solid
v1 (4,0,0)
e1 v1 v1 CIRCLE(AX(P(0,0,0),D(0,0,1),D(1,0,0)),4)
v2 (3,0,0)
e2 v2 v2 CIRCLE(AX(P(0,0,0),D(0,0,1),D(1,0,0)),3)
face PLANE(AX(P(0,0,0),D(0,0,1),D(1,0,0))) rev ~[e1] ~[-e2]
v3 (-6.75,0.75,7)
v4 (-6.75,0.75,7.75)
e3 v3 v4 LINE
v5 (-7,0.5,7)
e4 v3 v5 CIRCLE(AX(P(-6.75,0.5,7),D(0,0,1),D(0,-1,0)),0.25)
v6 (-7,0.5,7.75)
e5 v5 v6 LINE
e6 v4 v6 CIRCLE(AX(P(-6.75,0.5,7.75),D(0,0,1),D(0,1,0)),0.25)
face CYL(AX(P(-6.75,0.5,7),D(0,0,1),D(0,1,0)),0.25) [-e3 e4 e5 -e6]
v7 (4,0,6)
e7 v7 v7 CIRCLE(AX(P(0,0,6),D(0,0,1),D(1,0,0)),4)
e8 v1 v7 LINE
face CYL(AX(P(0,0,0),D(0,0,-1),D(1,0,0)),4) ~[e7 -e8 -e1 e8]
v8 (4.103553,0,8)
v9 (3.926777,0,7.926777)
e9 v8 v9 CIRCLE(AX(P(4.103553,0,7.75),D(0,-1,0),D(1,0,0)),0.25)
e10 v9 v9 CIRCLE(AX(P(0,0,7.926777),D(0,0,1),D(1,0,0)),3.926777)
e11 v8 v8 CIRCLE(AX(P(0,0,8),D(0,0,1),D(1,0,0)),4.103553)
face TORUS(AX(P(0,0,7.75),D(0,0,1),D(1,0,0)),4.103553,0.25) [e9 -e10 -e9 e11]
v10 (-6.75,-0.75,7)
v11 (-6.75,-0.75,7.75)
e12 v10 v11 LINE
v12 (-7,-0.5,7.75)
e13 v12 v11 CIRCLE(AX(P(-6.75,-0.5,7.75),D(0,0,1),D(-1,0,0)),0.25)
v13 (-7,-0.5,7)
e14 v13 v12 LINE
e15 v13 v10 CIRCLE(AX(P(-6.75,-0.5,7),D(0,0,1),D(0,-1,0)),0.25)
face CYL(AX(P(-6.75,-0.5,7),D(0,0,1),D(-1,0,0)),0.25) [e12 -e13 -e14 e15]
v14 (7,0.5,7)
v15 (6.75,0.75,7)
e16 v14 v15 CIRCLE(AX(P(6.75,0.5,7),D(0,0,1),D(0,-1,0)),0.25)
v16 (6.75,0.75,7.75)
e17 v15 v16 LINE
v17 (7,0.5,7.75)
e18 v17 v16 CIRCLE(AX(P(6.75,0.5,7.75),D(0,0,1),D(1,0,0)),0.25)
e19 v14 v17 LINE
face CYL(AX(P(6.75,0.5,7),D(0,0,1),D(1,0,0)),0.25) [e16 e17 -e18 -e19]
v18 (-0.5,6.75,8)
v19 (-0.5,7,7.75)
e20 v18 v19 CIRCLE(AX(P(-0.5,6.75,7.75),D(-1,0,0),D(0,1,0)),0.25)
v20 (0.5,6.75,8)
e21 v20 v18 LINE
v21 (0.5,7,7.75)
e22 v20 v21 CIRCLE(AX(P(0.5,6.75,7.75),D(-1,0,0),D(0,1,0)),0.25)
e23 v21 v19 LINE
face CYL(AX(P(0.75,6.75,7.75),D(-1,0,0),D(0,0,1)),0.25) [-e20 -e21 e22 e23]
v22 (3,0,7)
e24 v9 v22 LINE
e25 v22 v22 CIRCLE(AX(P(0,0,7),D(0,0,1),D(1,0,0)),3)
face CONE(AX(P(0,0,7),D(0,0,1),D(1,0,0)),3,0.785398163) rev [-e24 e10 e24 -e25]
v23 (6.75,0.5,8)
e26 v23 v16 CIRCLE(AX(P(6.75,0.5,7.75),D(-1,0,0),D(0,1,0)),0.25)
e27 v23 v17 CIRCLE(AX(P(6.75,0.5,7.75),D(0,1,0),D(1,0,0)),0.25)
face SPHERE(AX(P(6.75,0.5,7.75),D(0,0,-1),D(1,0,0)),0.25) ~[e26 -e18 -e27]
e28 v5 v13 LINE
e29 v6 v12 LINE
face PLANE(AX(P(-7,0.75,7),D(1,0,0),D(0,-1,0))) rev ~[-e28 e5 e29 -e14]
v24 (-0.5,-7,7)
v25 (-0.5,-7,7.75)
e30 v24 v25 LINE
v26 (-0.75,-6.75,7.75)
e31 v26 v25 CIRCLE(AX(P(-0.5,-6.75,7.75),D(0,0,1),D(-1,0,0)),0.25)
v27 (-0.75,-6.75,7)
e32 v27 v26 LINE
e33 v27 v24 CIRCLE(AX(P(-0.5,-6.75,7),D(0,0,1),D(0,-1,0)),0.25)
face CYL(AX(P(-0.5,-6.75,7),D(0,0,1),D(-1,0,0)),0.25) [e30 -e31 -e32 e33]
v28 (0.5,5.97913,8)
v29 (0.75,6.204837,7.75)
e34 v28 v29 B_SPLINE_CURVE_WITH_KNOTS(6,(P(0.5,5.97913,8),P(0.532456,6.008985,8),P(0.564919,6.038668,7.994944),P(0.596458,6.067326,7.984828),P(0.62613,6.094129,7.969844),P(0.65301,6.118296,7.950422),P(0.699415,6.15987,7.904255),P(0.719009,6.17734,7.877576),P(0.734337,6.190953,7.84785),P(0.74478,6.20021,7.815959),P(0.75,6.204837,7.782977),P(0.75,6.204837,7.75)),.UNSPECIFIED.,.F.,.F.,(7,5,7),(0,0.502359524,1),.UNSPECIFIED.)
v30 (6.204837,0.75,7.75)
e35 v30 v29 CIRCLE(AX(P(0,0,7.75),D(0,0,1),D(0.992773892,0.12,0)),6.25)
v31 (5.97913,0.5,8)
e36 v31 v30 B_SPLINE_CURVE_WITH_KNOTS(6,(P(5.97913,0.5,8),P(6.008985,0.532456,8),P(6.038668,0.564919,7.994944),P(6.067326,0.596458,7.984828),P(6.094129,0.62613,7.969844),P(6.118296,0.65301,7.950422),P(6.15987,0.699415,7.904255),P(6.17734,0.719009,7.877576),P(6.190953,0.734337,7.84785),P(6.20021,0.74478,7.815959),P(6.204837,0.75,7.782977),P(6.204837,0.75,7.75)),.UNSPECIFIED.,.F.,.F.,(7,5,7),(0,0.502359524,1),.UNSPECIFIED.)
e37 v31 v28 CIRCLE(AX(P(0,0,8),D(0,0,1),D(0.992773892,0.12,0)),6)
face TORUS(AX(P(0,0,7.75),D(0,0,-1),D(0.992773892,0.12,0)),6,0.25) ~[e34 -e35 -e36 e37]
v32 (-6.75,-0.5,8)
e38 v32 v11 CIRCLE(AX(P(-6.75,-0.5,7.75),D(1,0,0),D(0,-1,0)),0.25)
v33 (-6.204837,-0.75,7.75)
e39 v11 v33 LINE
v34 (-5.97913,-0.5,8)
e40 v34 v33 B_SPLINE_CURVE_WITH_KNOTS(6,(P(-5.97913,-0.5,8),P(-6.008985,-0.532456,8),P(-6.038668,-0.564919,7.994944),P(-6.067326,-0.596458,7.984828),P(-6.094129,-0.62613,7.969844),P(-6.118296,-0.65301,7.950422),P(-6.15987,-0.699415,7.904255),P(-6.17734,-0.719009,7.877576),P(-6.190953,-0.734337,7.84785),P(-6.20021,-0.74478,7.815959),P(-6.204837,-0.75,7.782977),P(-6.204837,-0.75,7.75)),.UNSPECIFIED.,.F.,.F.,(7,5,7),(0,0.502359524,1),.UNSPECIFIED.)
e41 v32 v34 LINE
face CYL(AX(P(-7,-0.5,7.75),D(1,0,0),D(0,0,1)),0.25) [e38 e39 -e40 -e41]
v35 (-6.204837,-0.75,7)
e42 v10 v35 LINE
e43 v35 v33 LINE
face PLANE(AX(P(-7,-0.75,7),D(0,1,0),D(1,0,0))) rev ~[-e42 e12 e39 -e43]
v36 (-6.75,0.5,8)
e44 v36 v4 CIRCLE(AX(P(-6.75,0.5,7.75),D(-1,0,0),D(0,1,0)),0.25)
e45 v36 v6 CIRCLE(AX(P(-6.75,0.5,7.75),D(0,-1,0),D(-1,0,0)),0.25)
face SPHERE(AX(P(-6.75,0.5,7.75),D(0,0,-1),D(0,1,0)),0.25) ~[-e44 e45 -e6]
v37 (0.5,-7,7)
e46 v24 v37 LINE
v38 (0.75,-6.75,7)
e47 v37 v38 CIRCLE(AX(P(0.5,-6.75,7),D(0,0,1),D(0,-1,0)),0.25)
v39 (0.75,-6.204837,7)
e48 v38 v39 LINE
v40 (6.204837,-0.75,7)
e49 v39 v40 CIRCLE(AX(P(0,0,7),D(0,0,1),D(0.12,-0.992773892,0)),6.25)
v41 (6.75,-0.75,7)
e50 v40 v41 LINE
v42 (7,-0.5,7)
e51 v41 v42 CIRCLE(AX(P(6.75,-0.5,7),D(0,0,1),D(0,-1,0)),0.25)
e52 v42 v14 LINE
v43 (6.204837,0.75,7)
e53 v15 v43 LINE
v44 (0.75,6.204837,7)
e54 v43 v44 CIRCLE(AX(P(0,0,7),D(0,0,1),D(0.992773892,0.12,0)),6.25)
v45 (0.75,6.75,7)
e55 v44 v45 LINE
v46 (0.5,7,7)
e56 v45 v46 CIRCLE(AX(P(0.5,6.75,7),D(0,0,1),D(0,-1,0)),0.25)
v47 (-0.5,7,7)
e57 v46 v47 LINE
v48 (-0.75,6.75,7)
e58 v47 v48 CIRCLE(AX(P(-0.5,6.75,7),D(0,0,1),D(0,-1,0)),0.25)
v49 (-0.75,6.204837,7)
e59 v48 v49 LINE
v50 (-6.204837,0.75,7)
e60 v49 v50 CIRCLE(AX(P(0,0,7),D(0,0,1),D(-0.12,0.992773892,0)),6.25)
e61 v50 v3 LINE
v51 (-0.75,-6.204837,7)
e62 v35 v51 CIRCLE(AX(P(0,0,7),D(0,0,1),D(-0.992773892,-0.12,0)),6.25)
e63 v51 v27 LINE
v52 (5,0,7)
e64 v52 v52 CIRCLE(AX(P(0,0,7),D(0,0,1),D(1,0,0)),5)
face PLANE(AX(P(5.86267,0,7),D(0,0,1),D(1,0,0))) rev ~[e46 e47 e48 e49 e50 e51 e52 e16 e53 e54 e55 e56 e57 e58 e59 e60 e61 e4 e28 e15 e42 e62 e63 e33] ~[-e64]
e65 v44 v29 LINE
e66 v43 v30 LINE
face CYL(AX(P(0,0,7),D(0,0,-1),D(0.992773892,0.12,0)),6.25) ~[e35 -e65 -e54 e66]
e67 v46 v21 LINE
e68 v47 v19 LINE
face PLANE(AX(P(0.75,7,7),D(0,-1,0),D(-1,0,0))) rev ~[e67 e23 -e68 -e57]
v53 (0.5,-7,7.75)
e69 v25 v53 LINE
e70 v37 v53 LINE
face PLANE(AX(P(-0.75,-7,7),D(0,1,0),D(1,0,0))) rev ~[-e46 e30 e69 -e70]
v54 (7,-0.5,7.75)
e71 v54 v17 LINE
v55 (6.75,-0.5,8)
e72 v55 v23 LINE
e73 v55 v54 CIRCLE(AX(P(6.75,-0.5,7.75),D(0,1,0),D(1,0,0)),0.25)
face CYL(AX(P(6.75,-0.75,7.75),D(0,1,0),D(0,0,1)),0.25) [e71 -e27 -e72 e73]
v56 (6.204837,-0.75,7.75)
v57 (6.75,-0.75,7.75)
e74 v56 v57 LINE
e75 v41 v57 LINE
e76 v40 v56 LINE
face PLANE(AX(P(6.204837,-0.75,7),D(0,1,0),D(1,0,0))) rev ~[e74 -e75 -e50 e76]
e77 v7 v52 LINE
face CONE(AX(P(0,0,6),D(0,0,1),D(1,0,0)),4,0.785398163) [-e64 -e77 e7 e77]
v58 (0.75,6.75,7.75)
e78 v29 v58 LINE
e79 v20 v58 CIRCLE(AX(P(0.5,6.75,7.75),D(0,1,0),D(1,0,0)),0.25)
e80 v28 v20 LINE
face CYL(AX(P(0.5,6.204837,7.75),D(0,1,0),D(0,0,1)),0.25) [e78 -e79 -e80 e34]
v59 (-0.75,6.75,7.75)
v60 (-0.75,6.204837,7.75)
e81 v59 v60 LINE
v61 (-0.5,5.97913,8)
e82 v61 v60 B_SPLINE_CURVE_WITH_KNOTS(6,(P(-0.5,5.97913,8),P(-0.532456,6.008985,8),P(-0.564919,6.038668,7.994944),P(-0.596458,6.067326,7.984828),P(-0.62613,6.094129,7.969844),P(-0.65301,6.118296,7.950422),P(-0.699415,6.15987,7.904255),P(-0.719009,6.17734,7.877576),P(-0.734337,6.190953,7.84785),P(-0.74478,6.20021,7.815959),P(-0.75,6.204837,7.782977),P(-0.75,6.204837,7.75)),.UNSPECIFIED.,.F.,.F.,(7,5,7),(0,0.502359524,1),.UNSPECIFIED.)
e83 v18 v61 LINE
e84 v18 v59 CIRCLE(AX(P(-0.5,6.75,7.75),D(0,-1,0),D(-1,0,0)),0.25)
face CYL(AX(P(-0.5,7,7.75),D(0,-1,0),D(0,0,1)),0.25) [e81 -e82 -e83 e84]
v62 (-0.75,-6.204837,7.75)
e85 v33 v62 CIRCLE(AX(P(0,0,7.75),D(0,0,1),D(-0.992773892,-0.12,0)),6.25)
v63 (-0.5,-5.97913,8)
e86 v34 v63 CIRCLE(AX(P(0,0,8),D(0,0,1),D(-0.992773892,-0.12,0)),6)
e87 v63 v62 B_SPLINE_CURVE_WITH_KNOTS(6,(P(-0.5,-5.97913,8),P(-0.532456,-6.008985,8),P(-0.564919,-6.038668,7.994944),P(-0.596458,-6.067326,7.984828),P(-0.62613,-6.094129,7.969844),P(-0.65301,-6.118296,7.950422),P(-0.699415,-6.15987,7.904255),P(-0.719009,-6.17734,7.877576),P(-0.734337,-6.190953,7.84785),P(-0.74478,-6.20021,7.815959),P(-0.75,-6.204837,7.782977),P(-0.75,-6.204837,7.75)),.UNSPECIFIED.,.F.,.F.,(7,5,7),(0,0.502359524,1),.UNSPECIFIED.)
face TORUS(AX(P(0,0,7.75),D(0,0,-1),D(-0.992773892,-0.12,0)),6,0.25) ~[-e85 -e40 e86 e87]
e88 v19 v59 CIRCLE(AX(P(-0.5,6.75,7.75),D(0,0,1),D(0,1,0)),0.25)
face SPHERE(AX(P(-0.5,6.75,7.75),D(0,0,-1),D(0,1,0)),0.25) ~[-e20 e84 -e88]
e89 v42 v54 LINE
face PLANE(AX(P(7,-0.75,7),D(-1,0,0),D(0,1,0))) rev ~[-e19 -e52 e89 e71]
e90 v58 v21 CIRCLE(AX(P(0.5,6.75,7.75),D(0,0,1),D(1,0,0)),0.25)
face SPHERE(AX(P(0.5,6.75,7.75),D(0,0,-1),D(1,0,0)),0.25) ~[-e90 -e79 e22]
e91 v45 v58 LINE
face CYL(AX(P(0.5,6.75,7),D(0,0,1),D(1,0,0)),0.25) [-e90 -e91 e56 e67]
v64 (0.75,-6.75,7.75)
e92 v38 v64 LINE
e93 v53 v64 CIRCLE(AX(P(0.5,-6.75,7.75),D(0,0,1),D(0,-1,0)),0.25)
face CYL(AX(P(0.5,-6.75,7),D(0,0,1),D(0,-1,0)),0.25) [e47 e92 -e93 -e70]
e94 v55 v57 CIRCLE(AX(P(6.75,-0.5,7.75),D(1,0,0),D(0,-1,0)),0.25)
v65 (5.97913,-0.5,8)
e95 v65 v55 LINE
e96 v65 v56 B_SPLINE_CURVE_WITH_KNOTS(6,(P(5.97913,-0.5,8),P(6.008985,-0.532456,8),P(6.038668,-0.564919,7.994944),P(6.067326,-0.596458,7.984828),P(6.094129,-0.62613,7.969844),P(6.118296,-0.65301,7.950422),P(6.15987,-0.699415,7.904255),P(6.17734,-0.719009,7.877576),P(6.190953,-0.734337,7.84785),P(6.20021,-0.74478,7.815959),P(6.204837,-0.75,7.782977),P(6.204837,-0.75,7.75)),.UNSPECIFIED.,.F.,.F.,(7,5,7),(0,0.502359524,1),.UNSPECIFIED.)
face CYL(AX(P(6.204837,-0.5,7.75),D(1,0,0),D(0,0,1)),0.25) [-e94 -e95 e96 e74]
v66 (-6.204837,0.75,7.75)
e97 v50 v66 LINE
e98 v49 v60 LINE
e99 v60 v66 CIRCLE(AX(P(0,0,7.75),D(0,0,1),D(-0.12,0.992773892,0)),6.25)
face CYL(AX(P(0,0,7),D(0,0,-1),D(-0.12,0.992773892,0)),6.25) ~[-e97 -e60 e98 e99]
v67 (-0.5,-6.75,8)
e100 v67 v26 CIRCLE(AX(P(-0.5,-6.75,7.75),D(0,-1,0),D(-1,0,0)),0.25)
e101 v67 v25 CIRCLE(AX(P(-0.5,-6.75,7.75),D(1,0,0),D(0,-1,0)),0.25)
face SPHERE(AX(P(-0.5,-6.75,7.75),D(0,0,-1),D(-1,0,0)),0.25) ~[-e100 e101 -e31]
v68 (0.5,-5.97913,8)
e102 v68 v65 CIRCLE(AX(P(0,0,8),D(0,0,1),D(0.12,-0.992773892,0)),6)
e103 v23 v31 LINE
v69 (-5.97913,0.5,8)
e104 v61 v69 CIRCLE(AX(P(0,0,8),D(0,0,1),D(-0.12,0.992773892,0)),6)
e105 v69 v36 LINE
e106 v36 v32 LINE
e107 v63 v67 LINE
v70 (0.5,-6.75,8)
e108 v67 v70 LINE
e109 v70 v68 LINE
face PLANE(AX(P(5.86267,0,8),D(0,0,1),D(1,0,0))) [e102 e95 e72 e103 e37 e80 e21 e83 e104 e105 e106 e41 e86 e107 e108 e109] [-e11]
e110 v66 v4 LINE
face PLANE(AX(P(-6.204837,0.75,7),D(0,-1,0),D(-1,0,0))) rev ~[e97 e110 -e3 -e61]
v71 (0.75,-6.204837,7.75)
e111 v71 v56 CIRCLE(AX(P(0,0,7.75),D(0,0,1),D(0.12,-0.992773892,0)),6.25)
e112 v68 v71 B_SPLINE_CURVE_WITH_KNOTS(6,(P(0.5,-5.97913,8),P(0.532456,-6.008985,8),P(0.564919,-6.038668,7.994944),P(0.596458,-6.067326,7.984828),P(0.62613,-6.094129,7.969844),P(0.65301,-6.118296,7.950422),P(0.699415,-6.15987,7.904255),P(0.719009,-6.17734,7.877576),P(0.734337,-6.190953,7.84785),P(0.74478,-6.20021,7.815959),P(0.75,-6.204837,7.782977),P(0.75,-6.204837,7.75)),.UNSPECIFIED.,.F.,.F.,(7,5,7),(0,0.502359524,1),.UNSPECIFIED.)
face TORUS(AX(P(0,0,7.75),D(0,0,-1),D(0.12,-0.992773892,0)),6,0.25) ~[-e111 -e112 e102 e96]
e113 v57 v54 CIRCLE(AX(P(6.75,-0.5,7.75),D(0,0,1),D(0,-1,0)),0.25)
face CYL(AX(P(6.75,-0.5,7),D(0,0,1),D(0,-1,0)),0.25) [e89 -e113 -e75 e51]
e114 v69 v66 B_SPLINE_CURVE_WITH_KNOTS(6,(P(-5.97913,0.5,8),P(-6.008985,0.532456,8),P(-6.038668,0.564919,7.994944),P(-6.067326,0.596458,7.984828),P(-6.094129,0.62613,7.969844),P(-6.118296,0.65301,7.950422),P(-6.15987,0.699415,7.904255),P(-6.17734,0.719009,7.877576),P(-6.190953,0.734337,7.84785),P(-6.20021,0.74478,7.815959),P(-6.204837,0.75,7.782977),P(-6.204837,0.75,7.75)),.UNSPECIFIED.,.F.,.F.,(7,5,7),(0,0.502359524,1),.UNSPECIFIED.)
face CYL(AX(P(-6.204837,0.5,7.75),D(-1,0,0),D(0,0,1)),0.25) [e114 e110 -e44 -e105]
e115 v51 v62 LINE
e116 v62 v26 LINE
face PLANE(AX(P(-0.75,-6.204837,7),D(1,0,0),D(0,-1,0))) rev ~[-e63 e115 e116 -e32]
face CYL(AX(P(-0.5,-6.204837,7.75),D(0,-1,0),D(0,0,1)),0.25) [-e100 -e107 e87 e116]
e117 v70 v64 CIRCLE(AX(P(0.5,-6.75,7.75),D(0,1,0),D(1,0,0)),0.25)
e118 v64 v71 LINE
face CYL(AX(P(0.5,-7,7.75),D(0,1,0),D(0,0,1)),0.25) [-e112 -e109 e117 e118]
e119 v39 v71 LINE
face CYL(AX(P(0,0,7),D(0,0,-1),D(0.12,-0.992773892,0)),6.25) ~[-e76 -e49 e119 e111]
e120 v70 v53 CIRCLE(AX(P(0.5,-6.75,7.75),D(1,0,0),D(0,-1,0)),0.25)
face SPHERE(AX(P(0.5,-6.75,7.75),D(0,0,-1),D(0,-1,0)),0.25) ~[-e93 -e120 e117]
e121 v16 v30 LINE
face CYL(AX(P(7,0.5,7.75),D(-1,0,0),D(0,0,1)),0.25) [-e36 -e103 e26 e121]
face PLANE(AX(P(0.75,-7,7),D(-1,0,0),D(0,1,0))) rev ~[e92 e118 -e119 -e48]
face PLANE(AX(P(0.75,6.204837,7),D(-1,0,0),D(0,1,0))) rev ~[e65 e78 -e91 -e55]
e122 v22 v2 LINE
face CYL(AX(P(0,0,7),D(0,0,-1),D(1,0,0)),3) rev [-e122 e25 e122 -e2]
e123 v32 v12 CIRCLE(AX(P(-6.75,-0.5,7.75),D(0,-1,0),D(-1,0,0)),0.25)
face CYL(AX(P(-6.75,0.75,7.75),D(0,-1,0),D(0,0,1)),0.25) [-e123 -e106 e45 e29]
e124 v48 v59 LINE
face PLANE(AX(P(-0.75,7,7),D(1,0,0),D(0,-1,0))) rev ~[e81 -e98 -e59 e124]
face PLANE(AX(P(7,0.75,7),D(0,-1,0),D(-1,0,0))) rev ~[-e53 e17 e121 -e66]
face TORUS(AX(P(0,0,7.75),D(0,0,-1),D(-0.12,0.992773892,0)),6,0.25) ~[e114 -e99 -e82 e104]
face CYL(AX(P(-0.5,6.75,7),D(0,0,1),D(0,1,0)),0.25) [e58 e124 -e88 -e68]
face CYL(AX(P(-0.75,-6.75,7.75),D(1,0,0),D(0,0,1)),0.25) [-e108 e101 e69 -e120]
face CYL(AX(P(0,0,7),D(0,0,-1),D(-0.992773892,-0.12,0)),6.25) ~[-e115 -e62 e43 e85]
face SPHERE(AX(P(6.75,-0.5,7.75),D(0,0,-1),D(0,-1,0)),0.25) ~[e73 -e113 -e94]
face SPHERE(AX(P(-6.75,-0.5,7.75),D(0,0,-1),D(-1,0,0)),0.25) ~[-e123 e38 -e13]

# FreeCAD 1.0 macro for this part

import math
import FreeCAD as App
import Part
import Sketcher

V = App.Vector
Q = App.Units.Quantity


def edges_at(feature, points):
    """Names of the edges that pass closest to the given points."""
    edges = feature.Shape.Edges
    near = lambda p: min(range(len(edges)), key=lambda i: edges[i].distToShape(Part.Vertex(*p))[0])
    return sorted({f"Edge{near(p) + 1}" for p in points})

doc = App.newDocument("Part")
body = doc.addObject("PartDesign::Body", "Body")

# Sketch on XY plane
sketch1 = body.newObject("Sketcher::SketchObject", "Sketch")
sketch1.AttachmentSupport = (doc.getObject("XY_Plane"), [""])
sketch1.MapMode = "FlatFace"
sketch1.addGeometry(Part.Circle(V(0, 0, 0), V(0, 0, 1), 4), False)
sketch1.addGeometry(Part.Circle(V(0, 0, 0), V(0, 0, 1), 3), False)
sketch1.addConstraint(Sketcher.Constraint("Coincident", 0, 3, -1, 1))
sketch1.addConstraint(Sketcher.Constraint("Coincident", 1, 3, -1, 1))
sketch1.addConstraint(Sketcher.Constraint("Diameter", 0, Q("8 mm")))
sketch1.addConstraint(Sketcher.Constraint("Diameter", 1, Q("6 mm")))
pad1 = body.newObject("PartDesign::Pad", "Pad")
pad1.Profile = sketch1
pad1.Length = 7

# Sketch on XY plane
sketch2 = body.newObject("Sketcher::SketchObject", "Sketch001")
sketch2.AttachmentSupport = (doc.getObject("XY_Plane"), [""])
sketch2.MapMode = "FlatFace"
sketch2.AttachmentOffset = App.Placement(V(0, 0, 7), App.Rotation())
sketch2.addGeometry(Part.LineSegment(V(6.2, -0.8, 0), V(7, -0.8, 0)), False)
sketch2.addGeometry(Part.LineSegment(V(7, -0.8, 0), V(7, 0.8, 0)), False)
sketch2.addGeometry(Part.LineSegment(V(7, 0.8, 0), V(6.2, 0.8, 0)), False)
sketch2.addGeometry(Part.ArcOfCircle(Part.Circle(V(0, 0, 0), V(0, 0, 1), 6.2), math.radians(7), math.radians(83)), False)
sketch2.addGeometry(Part.LineSegment(V(0.8, 6.2, 0), V(0.8, 7, 0)), False)
sketch2.addGeometry(Part.LineSegment(V(0.8, 7, 0), V(-0.8, 7, 0)), False)
sketch2.addGeometry(Part.LineSegment(V(-0.8, 7, 0), V(-0.8, 6.2, 0)), False)
sketch2.addGeometry(Part.ArcOfCircle(Part.Circle(V(0, 0, 0), V(0, 0, 1), 6.2), math.radians(97), math.radians(173)), False)
sketch2.addGeometry(Part.LineSegment(V(-6.2, 0.8, 0), V(-7, 0.8, 0)), False)
sketch2.addGeometry(Part.LineSegment(V(-7, 0.8, 0), V(-7, -0.8, 0)), False)
sketch2.addGeometry(Part.LineSegment(V(-7, -0.8, 0), V(-6.2, -0.8, 0)), False)
sketch2.addGeometry(Part.ArcOfCircle(Part.Circle(V(0, 0, 0), V(0, 0, 1), 6.2), math.radians(-173), math.radians(-97)), False)
sketch2.addGeometry(Part.LineSegment(V(-0.8, -6.2, 0), V(-0.8, -7, 0)), False)
sketch2.addGeometry(Part.LineSegment(V(-0.8, -7, 0), V(0.8, -7, 0)), False)
sketch2.addGeometry(Part.LineSegment(V(0.8, -7, 0), V(0.8, -6.2, 0)), False)
sketch2.addGeometry(Part.ArcOfCircle(Part.Circle(V(0, 0, 0), V(0, 0, 1), 6.2), math.radians(-83), math.radians(-7)), False)
sketch2.addGeometry(Part.Circle(V(0, 0, 0), V(0, 0, 1), 3), False)
sketch2.addConstraint(Sketcher.Constraint("Coincident", 0, 2, 1, 1))
sketch2.addConstraint(Sketcher.Constraint("Coincident", 1, 2, 2, 1))
sketch2.addConstraint(Sketcher.Constraint("Coincident", 2, 2, 3, 1))
sketch2.addConstraint(Sketcher.Constraint("Coincident", 3, 2, 4, 1))
sketch2.addConstraint(Sketcher.Constraint("Coincident", 4, 2, 5, 1))
sketch2.addConstraint(Sketcher.Constraint("Coincident", 5, 2, 6, 1))
sketch2.addConstraint(Sketcher.Constraint("Coincident", 6, 2, 7, 1))
sketch2.addConstraint(Sketcher.Constraint("Coincident", 7, 2, 8, 1))
sketch2.addConstraint(Sketcher.Constraint("Coincident", 8, 2, 9, 1))
sketch2.addConstraint(Sketcher.Constraint("Coincident", 9, 2, 10, 1))
sketch2.addConstraint(Sketcher.Constraint("Coincident", 10, 2, 11, 1))
sketch2.addConstraint(Sketcher.Constraint("Coincident", 11, 2, 12, 1))
sketch2.addConstraint(Sketcher.Constraint("Coincident", 12, 2, 13, 1))
sketch2.addConstraint(Sketcher.Constraint("Coincident", 13, 2, 14, 1))
sketch2.addConstraint(Sketcher.Constraint("Coincident", 14, 2, 15, 1))
sketch2.addConstraint(Sketcher.Constraint("Coincident", 15, 2, 0, 1))
sketch2.addConstraint(Sketcher.Constraint("Horizontal", 0))
sketch2.addConstraint(Sketcher.Constraint("Vertical", 1))
sketch2.addConstraint(Sketcher.Constraint("Horizontal", 2))
sketch2.addConstraint(Sketcher.Constraint("Vertical", 4))
sketch2.addConstraint(Sketcher.Constraint("Horizontal", 5))
sketch2.addConstraint(Sketcher.Constraint("Vertical", 6))
sketch2.addConstraint(Sketcher.Constraint("Horizontal", 8))
sketch2.addConstraint(Sketcher.Constraint("Vertical", 9))
sketch2.addConstraint(Sketcher.Constraint("Horizontal", 10))
sketch2.addConstraint(Sketcher.Constraint("Vertical", 12))
sketch2.addConstraint(Sketcher.Constraint("Horizontal", 13))
sketch2.addConstraint(Sketcher.Constraint("Vertical", 14))
sketch2.addConstraint(Sketcher.Constraint("Coincident", 3, 3, -1, 1))
sketch2.addConstraint(Sketcher.Constraint("Coincident", 7, 3, -1, 1))
sketch2.addConstraint(Sketcher.Constraint("Coincident", 11, 3, -1, 1))
sketch2.addConstraint(Sketcher.Constraint("Coincident", 15, 3, -1, 1))
sketch2.addConstraint(Sketcher.Constraint("Coincident", 16, 3, -1, 1))
sketch2.addConstraint(Sketcher.Constraint("Equal", 3, 7))
sketch2.addConstraint(Sketcher.Constraint("Equal", 7, 11))
sketch2.addConstraint(Sketcher.Constraint("Equal", 11, 15))
sketch2.addConstraint(Sketcher.Constraint("Symmetric", 0, 2, 8, 2, -1, 1))
sketch2.addConstraint(Sketcher.Constraint("Symmetric", 4, 2, 12, 2, -1, 1))
sketch2.addConstraint(Sketcher.Constraint("Horizontal", 3, 2, 6, 2))
sketch2.addConstraint(Sketcher.Constraint("Horizontal", 2, 2, 7, 2))
sketch2.addConstraint(Sketcher.Constraint("Horizontal", 0, 2, 9, 2))
sketch2.addConstraint(Sketcher.Constraint("Horizontal", 11, 2, 14, 2))
sketch2.addConstraint(Sketcher.Constraint("Equal", 13, 1))
sketch2.addConstraint(Sketcher.Constraint("Equal", 10, 4))
sketch2.addConstraint(Sketcher.Constraint("Diameter", 16, Q("6 mm")))
sketch2.addConstraint(Sketcher.Constraint("Radius", 3, Q("6.25 mm")))
sketch2.addConstraint(Sketcher.Constraint("DistanceX", 5, 2, 5, 1, Q("1.5 mm")))
sketch2.addConstraint(Sketcher.Constraint("DistanceX", -1, 1, 0, 2, Q("7 mm")))
pad2 = body.newObject("PartDesign::Pad", "Pad001")
pad2.Profile = sketch2
pad2.Length = 1
doc.recompute()

chamfer = body.newObject("PartDesign::Chamfer", "Chamfer")
chamfer.Base = (pad2, edges_at(pad2, [(-3, 0, 8), (-4, 0, 7)]))
chamfer.Size = 1
doc.recompute()

fillet = body.newObject("PartDesign::Fillet", "Fillet")
fillet.Base = (chamfer, edges_at(chamfer, [
    (-7, -0.75, 7.5),
    (-7, 0.75, 7.5),
    (-0.75, -7, 7.5),
    (0.75, -7, 7.5),
    (7, -0.75, 7.5),
    (7, 0.75, 7.5),
    (0.75, 7, 7.5),
    (-0.75, 7, 7.5),
    (-4, 0, 8),
    (6.602, -0.75, 8),
    (7, 0, 8),
    (6.602, 0.75, 8),
    (4.419, 4.419, 8),
    (0.75, 6.602, 8),
    (0, 7, 8),
    (-0.75, 6.602, 8),
    (-4.419, 4.419, 8),
    (-6.602, 0.75, 8),
    (-7, 0, 8),
    (-6.602, -0.75, 8),
    (-4.419, -4.419, 8),
    (-0.75, -6.602, 8),
    (0, -7, 8),
    (0.75, -6.602, 8),
    (4.419, -4.419, 8),
]))
fillet.Radius = 0.25

doc.recompute()
